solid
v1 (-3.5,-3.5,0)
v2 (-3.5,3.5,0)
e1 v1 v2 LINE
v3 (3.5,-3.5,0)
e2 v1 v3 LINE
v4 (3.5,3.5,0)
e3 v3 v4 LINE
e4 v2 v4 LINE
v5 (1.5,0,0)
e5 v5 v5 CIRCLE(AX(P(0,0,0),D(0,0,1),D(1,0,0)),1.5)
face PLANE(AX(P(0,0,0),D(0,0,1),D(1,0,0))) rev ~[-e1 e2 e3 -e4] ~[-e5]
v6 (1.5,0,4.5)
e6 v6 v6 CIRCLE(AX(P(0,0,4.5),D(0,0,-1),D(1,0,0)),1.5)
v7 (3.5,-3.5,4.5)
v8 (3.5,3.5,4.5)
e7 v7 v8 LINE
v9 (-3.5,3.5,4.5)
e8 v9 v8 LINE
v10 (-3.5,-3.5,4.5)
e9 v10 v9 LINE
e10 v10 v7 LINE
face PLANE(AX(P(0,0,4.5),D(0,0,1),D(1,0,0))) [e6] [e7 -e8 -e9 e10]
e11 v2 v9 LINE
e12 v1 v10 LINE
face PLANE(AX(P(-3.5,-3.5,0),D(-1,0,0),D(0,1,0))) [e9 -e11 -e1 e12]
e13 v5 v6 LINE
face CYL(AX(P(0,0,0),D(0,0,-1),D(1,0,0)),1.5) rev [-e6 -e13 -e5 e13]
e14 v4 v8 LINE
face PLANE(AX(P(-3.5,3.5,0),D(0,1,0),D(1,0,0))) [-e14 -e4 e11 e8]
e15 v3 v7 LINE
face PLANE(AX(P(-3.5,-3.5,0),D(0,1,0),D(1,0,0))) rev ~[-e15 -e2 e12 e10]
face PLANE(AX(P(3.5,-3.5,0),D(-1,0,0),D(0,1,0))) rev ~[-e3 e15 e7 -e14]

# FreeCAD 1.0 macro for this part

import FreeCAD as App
import Part
import Sketcher

V = App.Vector

doc = App.newDocument("Part")
params = doc.addObject("Spreadsheet::Sheet", "Params")
for row, (alias, value) in enumerate([
    ("sketch1_diameter", "3 mm"),
    ("pad1_length", "10 mm"),
    ("sketch2_width", "7 mm"),
    ("pad2_length", "4.5 mm"),
], start=1):
    params.set(f"A{row}", alias)
    params.set(f"B{row}", "=" + value)
    params.setAlias(f"B{row}", alias)

body = doc.addObject("PartDesign::Body", "Body")

sketch1 = doc.addObject("Sketcher::SketchObject", "Sketch")
body.addObject(sketch1)
sketch1.AttachmentSupport = (doc.XY_Plane, [""])
sketch1.MapMode = "FlatFace"
sketch1.addGeometry(Part.Circle(V(0, 0, 0), V(0, 0, 1), 1.5), False)
sketch1.addConstraint(Sketcher.Constraint("Coincident", 0, 3, -1, 1))
sketch1.addConstraint(Sketcher.Constraint("Diameter", 0, 3.0))
sketch1.setExpression("Constraints[1]", "Params.sketch1_diameter")
pad1 = doc.addObject("PartDesign::Pad", "Pad")
body.addObject(pad1)
pad1.Profile = sketch1
pad1.setExpression("Length", "Params.pad1_length")
body2 = doc.addObject("PartDesign::Body", "Body001")

sketch2 = doc.addObject("Sketcher::SketchObject", "Sketch001")
body2.addObject(sketch2)
sketch2.AttachmentSupport = (doc.getObject("XY_Plane001"), [""])
sketch2.MapMode = "FlatFace"
sketch2.addGeometry(Part.LineSegment(V(-4, 4, 0), V(-4, -4, 0)), False)
sketch2.addGeometry(Part.LineSegment(V(-4, -4, 0), V(4, -4, 0)), False)
sketch2.addGeometry(Part.LineSegment(V(4, -4, 0), V(4, 4, 0)), False)
sketch2.addGeometry(Part.LineSegment(V(4, 4, 0), V(-4, 4, 0)), False)
sketch2.addConstraint(Sketcher.Constraint("Coincident", 0, 2, 1, 1))
sketch2.addConstraint(Sketcher.Constraint("Coincident", 1, 2, 2, 1))
sketch2.addConstraint(Sketcher.Constraint("Coincident", 2, 2, 3, 1))
sketch2.addConstraint(Sketcher.Constraint("Coincident", 3, 2, 0, 1))
sketch2.addConstraint(Sketcher.Constraint("Vertical", 0))
sketch2.addConstraint(Sketcher.Constraint("Horizontal", 1))
sketch2.addConstraint(Sketcher.Constraint("Vertical", 2))
sketch2.addConstraint(Sketcher.Constraint("Horizontal", 3))
sketch2.addConstraint(Sketcher.Constraint("Symmetric", 0, 2, 2, 2, -1, 1))
sketch2.addConstraint(Sketcher.Constraint("Equal", 3, 0))
sketch2.addConstraint(Sketcher.Constraint("DistanceX", 1, 1, 1, 2, 7.0))
sketch2.setExpression("Constraints[10]", "Params.sketch2_width")
pad2 = doc.addObject("PartDesign::Pad", "Pad001")
body2.addObject(pad2)
pad2.Profile = sketch2
pad2.setExpression("Length", "Params.pad2_length")
doc.recompute()

boolean = doc.addObject("PartDesign::Boolean", "Boolean")
body2.addObject(boolean)
boolean.Type = "Cut"
boolean.addObjects([body])

doc.recompute()
